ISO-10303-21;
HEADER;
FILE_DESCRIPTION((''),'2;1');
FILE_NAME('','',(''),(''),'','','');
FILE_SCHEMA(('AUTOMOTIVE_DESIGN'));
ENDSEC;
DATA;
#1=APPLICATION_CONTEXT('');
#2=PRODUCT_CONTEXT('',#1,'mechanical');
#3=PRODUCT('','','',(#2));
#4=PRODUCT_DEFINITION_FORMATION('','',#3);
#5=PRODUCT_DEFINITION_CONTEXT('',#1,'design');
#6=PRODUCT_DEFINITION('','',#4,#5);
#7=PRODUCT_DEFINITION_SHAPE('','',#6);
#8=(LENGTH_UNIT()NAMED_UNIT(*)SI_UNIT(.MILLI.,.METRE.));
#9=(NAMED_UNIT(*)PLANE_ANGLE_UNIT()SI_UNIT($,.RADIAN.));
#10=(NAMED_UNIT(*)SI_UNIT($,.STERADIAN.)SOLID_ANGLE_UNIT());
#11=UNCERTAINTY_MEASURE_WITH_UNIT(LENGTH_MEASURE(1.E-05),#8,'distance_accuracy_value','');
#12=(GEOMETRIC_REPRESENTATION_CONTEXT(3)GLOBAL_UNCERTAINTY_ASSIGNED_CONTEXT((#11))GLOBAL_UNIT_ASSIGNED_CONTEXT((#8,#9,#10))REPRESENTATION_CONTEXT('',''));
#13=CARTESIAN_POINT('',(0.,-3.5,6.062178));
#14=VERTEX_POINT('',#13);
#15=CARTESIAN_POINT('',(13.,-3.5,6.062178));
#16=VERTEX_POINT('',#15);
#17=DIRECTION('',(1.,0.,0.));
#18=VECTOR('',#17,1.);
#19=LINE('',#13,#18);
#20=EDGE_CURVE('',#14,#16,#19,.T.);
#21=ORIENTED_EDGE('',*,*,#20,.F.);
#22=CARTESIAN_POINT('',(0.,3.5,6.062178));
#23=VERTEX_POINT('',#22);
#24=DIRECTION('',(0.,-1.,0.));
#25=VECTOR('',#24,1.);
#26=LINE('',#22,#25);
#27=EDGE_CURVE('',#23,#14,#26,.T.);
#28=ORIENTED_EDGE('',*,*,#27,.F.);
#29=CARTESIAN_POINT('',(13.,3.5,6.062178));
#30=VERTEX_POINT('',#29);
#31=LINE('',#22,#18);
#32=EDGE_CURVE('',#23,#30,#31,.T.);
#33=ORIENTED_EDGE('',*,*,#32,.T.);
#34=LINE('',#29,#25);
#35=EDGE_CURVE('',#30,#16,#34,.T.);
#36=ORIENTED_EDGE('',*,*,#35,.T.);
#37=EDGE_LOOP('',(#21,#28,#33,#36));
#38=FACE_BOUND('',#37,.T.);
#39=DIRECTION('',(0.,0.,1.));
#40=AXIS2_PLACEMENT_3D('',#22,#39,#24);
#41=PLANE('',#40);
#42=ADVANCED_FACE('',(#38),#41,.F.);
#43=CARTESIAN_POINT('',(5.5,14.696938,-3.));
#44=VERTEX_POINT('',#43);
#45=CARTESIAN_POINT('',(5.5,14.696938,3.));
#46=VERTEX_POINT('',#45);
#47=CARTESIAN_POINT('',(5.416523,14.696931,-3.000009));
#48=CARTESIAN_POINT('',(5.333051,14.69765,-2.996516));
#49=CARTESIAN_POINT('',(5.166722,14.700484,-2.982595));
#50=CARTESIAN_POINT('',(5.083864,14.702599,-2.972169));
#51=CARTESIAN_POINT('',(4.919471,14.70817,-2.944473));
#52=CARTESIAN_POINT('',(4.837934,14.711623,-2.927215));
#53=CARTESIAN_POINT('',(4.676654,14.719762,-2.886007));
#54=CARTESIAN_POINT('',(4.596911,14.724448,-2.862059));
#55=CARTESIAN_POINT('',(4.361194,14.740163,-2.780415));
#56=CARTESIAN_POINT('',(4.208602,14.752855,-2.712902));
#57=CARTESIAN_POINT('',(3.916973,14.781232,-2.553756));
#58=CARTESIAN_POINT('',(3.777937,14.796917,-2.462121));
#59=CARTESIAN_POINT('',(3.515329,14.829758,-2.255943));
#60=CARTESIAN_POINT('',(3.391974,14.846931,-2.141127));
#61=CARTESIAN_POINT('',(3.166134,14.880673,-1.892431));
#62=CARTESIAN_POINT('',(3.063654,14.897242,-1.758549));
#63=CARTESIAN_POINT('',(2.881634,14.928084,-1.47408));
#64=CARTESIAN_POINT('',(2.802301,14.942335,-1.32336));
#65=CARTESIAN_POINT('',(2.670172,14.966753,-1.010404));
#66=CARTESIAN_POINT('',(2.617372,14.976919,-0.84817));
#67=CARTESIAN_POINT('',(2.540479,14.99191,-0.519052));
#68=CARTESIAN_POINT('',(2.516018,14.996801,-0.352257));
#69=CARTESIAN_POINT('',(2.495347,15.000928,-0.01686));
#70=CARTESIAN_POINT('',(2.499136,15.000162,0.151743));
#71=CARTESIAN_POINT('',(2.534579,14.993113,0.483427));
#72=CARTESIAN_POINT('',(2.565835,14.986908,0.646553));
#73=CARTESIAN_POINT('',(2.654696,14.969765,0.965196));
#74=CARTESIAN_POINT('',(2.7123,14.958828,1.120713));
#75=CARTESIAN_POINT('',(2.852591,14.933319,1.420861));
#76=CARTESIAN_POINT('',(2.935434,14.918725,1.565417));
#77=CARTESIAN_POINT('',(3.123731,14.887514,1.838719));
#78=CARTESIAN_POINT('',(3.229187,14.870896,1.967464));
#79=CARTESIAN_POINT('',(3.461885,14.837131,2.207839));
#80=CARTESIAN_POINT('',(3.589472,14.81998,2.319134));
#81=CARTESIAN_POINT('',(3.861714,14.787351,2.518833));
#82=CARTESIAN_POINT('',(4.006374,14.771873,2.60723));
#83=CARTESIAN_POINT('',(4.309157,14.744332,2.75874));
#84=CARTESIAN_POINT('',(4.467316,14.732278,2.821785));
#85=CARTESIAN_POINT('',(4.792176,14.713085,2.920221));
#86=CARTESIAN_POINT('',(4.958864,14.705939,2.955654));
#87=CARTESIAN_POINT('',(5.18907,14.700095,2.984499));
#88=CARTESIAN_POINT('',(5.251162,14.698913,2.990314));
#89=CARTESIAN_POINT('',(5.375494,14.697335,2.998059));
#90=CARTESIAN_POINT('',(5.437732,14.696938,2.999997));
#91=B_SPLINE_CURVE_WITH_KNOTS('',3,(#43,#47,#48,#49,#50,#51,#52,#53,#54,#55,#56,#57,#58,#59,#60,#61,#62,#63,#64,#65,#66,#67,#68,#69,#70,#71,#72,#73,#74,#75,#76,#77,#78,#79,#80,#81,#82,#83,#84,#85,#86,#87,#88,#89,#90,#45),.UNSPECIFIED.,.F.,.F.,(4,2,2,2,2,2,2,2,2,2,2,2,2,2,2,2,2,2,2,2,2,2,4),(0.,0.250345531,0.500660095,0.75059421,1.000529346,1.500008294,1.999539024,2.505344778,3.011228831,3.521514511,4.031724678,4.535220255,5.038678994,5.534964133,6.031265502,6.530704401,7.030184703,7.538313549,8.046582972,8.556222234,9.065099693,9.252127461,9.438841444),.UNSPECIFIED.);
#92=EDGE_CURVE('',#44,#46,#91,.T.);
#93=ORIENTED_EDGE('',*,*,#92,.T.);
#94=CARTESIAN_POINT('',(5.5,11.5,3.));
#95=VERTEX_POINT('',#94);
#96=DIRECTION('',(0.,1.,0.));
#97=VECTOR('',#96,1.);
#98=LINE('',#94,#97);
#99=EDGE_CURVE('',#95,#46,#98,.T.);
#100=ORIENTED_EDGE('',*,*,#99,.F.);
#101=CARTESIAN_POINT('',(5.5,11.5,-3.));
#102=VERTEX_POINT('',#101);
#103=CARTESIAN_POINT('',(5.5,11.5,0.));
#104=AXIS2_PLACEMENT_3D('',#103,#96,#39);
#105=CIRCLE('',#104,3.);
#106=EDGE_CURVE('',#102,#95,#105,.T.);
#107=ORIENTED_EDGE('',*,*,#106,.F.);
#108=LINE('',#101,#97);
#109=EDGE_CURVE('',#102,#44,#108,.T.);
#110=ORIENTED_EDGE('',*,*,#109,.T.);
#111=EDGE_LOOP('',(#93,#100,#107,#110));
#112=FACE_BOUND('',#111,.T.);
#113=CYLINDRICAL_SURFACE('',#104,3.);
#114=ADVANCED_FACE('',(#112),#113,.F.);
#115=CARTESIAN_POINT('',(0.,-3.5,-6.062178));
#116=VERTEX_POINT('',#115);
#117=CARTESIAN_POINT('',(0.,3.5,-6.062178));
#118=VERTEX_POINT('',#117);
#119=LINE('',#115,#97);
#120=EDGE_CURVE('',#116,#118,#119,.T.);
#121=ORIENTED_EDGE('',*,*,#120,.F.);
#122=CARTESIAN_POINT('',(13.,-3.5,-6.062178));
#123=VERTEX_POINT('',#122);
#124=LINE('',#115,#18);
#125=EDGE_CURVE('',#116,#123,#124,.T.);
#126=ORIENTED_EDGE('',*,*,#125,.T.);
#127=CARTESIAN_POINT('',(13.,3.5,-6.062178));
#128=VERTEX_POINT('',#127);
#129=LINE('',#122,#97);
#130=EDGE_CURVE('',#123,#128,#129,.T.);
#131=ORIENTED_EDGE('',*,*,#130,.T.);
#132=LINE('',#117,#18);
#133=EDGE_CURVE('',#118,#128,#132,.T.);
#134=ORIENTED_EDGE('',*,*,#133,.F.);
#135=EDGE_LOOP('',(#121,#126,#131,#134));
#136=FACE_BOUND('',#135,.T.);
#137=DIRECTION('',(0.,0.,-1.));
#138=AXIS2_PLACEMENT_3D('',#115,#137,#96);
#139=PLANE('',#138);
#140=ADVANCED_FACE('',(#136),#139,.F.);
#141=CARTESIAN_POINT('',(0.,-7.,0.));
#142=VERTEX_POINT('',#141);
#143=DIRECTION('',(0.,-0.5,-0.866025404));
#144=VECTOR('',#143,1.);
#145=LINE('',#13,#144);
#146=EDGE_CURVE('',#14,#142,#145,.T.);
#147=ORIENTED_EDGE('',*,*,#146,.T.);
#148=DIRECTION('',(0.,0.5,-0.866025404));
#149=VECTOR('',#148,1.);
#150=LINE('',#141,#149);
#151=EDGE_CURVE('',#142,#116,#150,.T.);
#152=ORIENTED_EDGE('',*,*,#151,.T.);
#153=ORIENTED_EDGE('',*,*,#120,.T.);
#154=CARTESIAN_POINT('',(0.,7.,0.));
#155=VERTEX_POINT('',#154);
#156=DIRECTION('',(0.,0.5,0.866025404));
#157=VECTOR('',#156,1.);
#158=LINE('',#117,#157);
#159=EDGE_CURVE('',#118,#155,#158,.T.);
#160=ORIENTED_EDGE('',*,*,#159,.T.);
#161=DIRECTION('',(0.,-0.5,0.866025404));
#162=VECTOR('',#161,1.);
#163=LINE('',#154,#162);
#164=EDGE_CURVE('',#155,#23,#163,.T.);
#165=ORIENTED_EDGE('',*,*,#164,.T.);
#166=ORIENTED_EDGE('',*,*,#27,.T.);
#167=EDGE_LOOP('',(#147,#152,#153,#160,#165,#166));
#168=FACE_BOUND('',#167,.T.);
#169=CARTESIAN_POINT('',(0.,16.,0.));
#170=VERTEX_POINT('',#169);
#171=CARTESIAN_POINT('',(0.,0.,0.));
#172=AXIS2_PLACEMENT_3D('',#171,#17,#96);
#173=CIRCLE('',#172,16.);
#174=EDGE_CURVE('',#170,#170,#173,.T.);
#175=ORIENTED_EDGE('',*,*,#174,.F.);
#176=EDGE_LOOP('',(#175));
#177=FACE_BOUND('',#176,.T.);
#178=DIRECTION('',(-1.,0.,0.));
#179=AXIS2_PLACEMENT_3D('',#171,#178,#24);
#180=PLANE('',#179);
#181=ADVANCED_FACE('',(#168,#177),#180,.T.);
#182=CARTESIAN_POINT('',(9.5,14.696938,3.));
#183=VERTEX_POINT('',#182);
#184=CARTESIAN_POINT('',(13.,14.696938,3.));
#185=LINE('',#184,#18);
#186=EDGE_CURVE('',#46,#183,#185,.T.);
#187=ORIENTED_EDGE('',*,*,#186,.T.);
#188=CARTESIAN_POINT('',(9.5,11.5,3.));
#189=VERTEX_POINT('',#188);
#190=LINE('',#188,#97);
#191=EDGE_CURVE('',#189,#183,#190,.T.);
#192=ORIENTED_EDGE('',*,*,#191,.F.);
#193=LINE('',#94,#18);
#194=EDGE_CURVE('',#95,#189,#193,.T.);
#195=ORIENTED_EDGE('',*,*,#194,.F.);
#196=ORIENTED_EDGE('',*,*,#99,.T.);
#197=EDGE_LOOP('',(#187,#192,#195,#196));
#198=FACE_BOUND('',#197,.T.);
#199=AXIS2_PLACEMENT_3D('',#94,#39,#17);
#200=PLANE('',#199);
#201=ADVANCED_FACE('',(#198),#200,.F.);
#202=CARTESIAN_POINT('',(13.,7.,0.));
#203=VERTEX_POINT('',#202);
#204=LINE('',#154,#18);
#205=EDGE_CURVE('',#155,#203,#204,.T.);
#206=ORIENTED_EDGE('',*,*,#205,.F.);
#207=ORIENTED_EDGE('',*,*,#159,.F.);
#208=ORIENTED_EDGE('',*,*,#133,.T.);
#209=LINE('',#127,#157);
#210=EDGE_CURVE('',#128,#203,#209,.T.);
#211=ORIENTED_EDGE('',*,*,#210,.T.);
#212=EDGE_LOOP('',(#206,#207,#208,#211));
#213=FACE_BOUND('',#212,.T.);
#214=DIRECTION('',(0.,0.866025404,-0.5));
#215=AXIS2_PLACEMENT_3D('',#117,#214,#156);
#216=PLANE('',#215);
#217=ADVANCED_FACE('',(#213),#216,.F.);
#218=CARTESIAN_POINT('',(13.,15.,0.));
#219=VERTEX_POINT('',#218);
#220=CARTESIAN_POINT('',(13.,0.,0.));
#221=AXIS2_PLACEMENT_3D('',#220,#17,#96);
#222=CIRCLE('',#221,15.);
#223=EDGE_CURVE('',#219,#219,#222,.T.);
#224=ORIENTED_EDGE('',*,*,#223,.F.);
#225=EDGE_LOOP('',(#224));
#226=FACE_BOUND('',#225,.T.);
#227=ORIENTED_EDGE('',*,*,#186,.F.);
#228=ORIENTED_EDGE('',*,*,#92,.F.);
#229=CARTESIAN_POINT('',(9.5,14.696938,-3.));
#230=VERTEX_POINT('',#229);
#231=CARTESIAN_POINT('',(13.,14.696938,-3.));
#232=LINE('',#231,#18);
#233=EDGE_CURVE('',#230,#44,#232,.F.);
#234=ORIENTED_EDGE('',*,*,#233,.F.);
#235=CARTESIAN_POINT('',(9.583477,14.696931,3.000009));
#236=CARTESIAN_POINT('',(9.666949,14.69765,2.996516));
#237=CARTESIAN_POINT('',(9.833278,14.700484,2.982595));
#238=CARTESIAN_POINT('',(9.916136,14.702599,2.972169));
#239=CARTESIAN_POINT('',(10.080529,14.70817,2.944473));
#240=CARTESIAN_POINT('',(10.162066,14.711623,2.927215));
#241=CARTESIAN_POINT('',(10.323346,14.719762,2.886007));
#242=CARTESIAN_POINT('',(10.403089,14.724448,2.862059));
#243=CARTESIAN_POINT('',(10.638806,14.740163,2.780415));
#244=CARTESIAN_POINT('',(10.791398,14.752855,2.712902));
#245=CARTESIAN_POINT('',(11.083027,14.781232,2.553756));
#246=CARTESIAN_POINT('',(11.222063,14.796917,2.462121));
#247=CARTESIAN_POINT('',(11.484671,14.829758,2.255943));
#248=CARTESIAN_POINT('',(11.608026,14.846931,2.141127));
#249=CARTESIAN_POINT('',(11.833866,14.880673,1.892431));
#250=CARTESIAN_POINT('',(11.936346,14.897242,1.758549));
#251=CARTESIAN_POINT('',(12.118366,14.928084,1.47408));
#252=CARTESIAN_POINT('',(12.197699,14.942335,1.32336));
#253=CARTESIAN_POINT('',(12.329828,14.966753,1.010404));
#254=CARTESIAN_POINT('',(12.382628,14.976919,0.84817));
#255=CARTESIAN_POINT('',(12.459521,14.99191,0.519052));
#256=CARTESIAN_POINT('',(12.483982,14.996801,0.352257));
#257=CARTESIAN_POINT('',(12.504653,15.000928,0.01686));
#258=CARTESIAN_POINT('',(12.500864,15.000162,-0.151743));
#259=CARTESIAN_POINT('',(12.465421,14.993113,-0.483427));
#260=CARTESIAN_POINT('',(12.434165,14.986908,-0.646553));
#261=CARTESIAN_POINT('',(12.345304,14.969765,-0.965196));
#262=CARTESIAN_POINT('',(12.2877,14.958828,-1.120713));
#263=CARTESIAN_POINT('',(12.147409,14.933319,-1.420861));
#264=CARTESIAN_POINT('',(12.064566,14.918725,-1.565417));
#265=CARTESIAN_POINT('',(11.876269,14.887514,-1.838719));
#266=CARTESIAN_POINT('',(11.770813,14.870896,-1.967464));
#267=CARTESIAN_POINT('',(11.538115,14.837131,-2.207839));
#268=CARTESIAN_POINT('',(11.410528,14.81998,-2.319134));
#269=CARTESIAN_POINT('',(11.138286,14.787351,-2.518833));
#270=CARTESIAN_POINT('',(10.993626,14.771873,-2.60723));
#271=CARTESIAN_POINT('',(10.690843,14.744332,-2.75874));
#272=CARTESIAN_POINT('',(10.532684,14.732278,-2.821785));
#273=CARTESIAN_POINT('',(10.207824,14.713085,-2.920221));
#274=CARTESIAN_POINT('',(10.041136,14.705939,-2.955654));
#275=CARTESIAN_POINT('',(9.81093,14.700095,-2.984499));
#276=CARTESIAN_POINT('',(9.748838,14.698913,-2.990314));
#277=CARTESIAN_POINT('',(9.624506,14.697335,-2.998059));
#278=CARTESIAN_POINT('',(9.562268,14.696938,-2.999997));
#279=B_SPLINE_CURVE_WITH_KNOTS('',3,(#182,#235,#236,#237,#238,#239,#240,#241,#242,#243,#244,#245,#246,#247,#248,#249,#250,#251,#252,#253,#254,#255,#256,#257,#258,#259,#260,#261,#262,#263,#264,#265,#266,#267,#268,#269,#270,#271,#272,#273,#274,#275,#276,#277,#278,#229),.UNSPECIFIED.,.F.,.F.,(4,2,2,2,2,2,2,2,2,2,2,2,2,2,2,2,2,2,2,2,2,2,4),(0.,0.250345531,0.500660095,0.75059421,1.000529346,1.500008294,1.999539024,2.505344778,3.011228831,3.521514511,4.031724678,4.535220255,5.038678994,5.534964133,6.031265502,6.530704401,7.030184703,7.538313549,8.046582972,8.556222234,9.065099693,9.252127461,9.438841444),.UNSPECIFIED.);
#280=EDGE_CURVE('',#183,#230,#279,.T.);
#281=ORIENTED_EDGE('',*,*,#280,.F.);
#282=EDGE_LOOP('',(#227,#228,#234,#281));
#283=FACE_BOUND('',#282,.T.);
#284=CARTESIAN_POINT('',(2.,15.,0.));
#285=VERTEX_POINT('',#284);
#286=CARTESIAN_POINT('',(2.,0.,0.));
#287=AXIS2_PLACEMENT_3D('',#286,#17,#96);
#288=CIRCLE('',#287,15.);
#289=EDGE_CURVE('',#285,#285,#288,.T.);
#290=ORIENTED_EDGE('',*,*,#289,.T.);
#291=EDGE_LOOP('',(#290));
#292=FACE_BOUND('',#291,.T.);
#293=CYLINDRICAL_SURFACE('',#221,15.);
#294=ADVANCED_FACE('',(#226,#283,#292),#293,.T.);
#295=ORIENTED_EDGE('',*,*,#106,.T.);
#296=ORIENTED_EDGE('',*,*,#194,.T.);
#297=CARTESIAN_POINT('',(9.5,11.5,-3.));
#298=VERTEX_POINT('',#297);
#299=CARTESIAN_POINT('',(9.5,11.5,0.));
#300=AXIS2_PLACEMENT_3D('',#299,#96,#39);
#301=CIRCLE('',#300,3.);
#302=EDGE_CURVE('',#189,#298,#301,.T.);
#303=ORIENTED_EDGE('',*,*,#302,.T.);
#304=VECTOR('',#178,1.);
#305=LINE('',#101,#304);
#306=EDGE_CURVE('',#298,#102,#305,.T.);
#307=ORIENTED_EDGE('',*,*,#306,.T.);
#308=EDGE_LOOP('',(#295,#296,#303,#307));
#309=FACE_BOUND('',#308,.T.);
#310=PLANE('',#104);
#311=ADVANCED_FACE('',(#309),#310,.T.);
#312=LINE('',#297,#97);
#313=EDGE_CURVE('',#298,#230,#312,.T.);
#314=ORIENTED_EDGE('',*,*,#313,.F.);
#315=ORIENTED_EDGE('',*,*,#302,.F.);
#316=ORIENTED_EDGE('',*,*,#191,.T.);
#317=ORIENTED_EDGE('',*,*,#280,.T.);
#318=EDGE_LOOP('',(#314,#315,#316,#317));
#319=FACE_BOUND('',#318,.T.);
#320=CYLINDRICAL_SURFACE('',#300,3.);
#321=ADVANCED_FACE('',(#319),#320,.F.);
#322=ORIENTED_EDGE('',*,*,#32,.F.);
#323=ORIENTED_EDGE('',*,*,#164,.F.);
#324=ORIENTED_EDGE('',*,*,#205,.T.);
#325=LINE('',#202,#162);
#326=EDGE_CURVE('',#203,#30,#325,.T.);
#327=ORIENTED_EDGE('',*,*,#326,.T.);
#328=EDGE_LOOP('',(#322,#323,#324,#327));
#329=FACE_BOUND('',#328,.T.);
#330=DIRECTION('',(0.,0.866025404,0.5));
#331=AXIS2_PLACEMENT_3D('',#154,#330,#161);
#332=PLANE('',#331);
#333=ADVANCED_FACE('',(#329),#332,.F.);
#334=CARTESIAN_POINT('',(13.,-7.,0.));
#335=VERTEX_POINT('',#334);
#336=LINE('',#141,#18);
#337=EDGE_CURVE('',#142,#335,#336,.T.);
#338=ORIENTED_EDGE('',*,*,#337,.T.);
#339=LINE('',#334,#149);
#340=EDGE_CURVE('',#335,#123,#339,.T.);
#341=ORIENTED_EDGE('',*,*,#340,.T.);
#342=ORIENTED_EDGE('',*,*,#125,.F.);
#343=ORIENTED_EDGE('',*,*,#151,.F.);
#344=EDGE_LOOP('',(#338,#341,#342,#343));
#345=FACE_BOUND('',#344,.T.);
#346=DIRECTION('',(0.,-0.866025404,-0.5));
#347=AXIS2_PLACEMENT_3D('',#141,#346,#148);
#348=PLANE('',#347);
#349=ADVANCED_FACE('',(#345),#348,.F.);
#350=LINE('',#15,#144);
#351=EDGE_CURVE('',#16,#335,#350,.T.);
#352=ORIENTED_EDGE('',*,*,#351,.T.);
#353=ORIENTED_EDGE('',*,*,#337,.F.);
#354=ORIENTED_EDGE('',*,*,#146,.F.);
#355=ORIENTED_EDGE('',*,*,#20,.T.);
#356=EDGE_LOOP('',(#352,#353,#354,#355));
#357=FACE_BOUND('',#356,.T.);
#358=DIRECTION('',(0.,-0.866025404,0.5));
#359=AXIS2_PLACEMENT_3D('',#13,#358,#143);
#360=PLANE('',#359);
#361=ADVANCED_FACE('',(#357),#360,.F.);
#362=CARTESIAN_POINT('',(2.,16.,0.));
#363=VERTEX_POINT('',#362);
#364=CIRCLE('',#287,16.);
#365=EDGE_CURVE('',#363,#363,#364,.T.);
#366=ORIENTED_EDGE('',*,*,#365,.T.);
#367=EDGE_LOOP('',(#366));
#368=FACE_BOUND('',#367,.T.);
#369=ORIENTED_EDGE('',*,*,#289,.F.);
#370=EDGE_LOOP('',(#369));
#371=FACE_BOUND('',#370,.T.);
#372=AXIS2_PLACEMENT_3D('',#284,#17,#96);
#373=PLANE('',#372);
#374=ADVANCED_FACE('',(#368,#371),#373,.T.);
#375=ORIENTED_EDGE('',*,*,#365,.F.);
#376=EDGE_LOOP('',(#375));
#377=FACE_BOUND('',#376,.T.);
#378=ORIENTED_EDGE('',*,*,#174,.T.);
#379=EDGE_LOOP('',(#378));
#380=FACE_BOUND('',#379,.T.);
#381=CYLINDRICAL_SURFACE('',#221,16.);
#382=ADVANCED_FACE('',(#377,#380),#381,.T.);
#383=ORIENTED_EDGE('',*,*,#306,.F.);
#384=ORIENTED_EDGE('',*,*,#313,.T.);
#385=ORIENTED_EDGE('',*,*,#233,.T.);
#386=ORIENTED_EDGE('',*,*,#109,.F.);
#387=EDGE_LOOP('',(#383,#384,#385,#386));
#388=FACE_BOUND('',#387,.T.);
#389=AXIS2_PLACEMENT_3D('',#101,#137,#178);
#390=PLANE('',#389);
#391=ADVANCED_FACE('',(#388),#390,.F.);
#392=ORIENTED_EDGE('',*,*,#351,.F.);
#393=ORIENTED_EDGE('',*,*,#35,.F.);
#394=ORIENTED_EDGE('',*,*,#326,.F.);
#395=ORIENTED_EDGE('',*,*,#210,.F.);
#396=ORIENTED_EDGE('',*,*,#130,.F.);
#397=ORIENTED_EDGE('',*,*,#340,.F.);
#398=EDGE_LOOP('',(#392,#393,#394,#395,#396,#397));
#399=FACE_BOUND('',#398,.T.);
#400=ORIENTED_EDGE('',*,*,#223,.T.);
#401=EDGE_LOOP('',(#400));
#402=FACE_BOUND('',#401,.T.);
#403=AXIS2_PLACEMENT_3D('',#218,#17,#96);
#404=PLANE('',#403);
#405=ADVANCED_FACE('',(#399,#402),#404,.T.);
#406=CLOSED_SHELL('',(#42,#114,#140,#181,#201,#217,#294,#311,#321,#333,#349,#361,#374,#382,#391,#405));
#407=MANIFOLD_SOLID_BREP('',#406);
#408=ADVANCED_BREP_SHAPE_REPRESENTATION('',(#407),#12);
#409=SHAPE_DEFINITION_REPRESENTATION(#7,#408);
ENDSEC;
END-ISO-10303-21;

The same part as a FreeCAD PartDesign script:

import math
import FreeCAD as App
import Part
import Sketcher

V = App.Vector
Q = App.Units.Quantity


def add_polygon(sketch, points):
    """Adds a closed chain of lines whose ends are joined by coincident constraints."""
    first, n = sketch.GeometryCount, len(points)
    for a, b in zip(points, points[1:] + points[:1]):
        sketch.addGeometry(Part.LineSegment(App.Vector(*a, 0), App.Vector(*b, 0)), False)
    for i in range(n):
        sketch.addConstraint(Sketcher.Constraint("Coincident", first + i, 2, first + (i + 1) % n, 1))

doc = App.newDocument("Part")
body = doc.addObject("PartDesign::Body", "Body")

# Sketch on XY plane
sketch1 = body.newObject("Sketcher::SketchObject", "Sketch")
sketch1.AttachmentSupport = (doc.getObject("XY_Plane"), [""])
sketch1.MapMode = "FlatFace"
add_polygon(sketch1, [(0, 16), (0, 0), (13, 0), (13, 15), (2, 15), (2, 16)])  # lines 0-5
sketch1.addConstraint(Sketcher.Constraint("Vertical", 0))
sketch1.addConstraint(Sketcher.Constraint("Horizontal", 1))
sketch1.addConstraint(Sketcher.Constraint("Vertical", 2))
sketch1.addConstraint(Sketcher.Constraint("Horizontal", 3))
sketch1.addConstraint(Sketcher.Constraint("Vertical", 4))
sketch1.addConstraint(Sketcher.Constraint("Horizontal", 5))
sketch1.addConstraint(Sketcher.Constraint("Coincident", 0, 2, -1, 1))
sketch1.addConstraint(Sketcher.Constraint("DistanceX", 1, 1, 1, 2, Q("13 mm")))
sketch1.addConstraint(Sketcher.Constraint("DistanceX", 3, 2, 3, 1, Q("11 mm")))
sketch1.addConstraint(Sketcher.Constraint("DistanceY", 0, 2, 0, 1, Q("16 mm")))
sketch1.addConstraint(Sketcher.Constraint("DistanceY", 2, 1, 2, 2, Q("15 mm")))
revolution = body.newObject("PartDesign::Revolution", "Revolution")
revolution.Profile = sketch1
revolution.ReferenceAxis = (sketch1, ["H_Axis"])
revolution.Angle = 360

# Sketch on YZ plane
sketch2 = body.newObject("Sketcher::SketchObject", "Sketch001")
sketch2.AttachmentSupport = (doc.getObject("YZ_Plane"), [""])
sketch2.MapMode = "FlatFace"
sketch2.AttachmentOffset = App.Placement(V(0, 0, 13), App.Rotation())
add_polygon(sketch2, [(7, 0), (3.5, 6.062178), (-3.5, 6.062178), (-7, 0), (-3.5, -6.062178), (3.5, -6.062178)])  # lines 0-5
sketch2.addConstraint(Sketcher.Constraint("Horizontal", 1))
sketch2.addConstraint(Sketcher.Constraint("Horizontal", 4))
sketch2.addConstraint(Sketcher.Constraint("Symmetric", 0, 2, 3, 2, -1, 1))
sketch2.addConstraint(Sketcher.Constraint("Symmetric", 2, 2, 5, 2, -1, 1))
sketch2.addConstraint(Sketcher.Constraint("PointOnObject", 2, 2, -1))
sketch2.addConstraint(Sketcher.Constraint("Parallel", 2, 5))
sketch2.addConstraint(Sketcher.Constraint("Vertical", 1, 2, 3, 2))
sketch2.addConstraint(Sketcher.Constraint("DistanceX", 1, 2, 1, 1, Q("7 mm")))
sketch2.addConstraint(Sketcher.Constraint("Angle", 0, Q("120 deg")))
sketch2.addConstraint(Sketcher.Constraint("Distance", 0, Q("7 mm")))
pocket1 = body.newObject("PartDesign::Pocket", "Pocket")
pocket1.Profile = sketch2
pocket1.Type = "ThroughAll"

# Sketch on XZ plane
sketch3 = body.newObject("Sketcher::SketchObject", "Sketch002")
sketch3.AttachmentSupport = (doc.getObject("XZ_Plane"), [""])
sketch3.MapMode = "FlatFace"
sketch3.AttachmentOffset = App.Placement(V(0, 0, -15), App.Rotation())
sketch3.addGeometry(Part.LineSegment(V(9.5, -3, 0), V(5.5, -3, 0)), False)
sketch3.addGeometry(Part.ArcOfCircle(Part.Circle(V(5.5, 0, 0), V(0, 0, 1), 3), math.radians(90), math.radians(270)), False)
sketch3.addGeometry(Part.LineSegment(V(5.5, 3, 0), V(9.5, 3, 0)), False)
sketch3.addGeometry(Part.ArcOfCircle(Part.Circle(V(9.5, 0, 0), V(0, 0, 1), 3), math.radians(-90), math.radians(90)), False)
sketch3.addConstraint(Sketcher.Constraint("Tangent", 0, 2, 1, 2))
sketch3.addConstraint(Sketcher.Constraint("Tangent", 1, 1, 2, 1))
sketch3.addConstraint(Sketcher.Constraint("Tangent", 2, 2, 3, 2))
sketch3.addConstraint(Sketcher.Constraint("Tangent", 3, 1, 0, 1))
sketch3.addConstraint(Sketcher.Constraint("Horizontal", 0))
sketch3.addConstraint(Sketcher.Constraint("Horizontal", 2))
sketch3.addConstraint(Sketcher.Constraint("PointOnObject", 1, 3, -1))
sketch3.addConstraint(Sketcher.Constraint("Radius", 1, Q("3 mm")))
sketch3.addConstraint(Sketcher.Constraint("DistanceX", 0, 2, 0, 1, Q("4 mm")))
sketch3.addConstraint(Sketcher.Constraint("DistanceX", -1, 1, 1, 3, Q("5.5 mm")))
pocket2 = body.newObject("PartDesign::Pocket", "Pocket001")
pocket2.Profile = sketch3
pocket2.Length = 3.5
pocket2.Reversed = True

doc.recompute()
